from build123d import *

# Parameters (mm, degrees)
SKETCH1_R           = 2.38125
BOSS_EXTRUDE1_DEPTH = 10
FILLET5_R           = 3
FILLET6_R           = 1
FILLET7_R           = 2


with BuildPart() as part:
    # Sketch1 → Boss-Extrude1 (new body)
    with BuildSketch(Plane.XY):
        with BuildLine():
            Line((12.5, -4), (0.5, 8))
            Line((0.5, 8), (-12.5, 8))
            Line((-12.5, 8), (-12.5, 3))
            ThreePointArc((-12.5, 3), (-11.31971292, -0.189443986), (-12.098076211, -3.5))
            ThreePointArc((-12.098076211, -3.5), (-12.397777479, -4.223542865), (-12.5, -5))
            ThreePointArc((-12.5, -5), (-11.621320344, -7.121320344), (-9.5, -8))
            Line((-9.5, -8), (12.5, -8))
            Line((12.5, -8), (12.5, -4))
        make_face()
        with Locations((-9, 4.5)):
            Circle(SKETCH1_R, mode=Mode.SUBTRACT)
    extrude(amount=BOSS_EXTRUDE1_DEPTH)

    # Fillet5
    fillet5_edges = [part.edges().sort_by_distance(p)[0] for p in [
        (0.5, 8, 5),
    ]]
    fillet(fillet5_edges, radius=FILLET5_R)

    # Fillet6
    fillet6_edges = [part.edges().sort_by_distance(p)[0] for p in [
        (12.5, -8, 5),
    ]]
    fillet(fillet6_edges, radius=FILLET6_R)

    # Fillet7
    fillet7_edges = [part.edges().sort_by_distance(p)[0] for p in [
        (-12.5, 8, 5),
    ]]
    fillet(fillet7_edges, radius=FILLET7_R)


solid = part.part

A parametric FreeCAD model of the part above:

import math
import FreeCAD as App
import Part
import Sketcher

V = App.Vector
Q = App.Units.Quantity


def edges_at(feature, points):
    """Names of the edges that pass closest to the given points."""
    edges = feature.Shape.Edges
    near = lambda p: min(range(len(edges)), key=lambda i: edges[i].distToShape(Part.Vertex(*p))[0])
    return sorted({f"Edge{near(p) + 1}" for p in points})

doc = App.newDocument("Part")
body = doc.addObject("PartDesign::Body", "Body")

sketch1 = body.newObject("Sketcher::SketchObject", "Sketch")
sketch1.AttachmentSupport = (doc.getObject("XY_Plane"), [""])
sketch1.MapMode = "FlatFace"
sketch1.addGeometry([
    Part.LineSegment(V(12.5, -4, 0), V(0.5, 8, 0)),
    Part.LineSegment(V(0.5, 8, 0), V(-12.5, 8, 0)),
    Part.LineSegment(V(-12.5, 8, 0), V(-12.5, 3, 0)),
    Part.ArcOfCircle(Part.Circle(V(-17.202119, -0.553179, 0), V(0, 0, 1), 5.893642), math.radians(-30), math.radians(37.076694)),
    Part.ArcOfCircle(Part.Circle(V(-9.5, -5, 0), V(0, 0, 1), 3), math.radians(150), math.radians(180)),
    Part.ArcOfCircle(Part.Circle(V(-9.5, -5, 0), V(0, 0, 1), 3), math.radians(180), math.radians(270)),
    Part.LineSegment(V(-9.5, -8, 0), V(12.5, -8, 0)),
    Part.LineSegment(V(12.5, -8, 0), V(12.5, -4, 0)),
    Part.Circle(V(-9, 4.5, 0), V(0, 0, 1), 2.38125),
], False)
sketch1.addConstraint([
    Sketcher.Constraint("Coincident", 0, 2, 1, 1),
    Sketcher.Constraint("Coincident", 1, 2, 2, 1),
    Sketcher.Constraint("Coincident", 2, 2, 3, 2),
    Sketcher.Constraint("Tangent", 3, 1, 4, 1),
    Sketcher.Constraint("Tangent", 4, 2, 5, 1),
    Sketcher.Constraint("Tangent", 5, 2, 6, 1),
    Sketcher.Constraint("Coincident", 6, 2, 7, 1),
    Sketcher.Constraint("Coincident", 7, 2, 0, 1),
    Sketcher.Constraint("Horizontal", 1),
    Sketcher.Constraint("Vertical", 2),
    Sketcher.Constraint("Horizontal", 6),
    Sketcher.Constraint("Vertical", 7),
    Sketcher.Constraint("Equal", 4, 5),
    Sketcher.Constraint("Symmetric", 1, 2, 6, 2, -1, 1),
    Sketcher.Constraint("Horizontal", 5, 3, 4, 2),
    Sketcher.Constraint("Vertical", 2, 2, 4, 2),
    Sketcher.Constraint("Radius", 4, Q("3 mm")),
    Sketcher.Constraint("DistanceX", 1, 2, 1, 1, Q("13 mm")),
    Sketcher.Constraint("DistanceX", 6, 1, 6, 2, Q("22 mm")),
    Sketcher.Constraint("DistanceY", 2, 2, 2, 1, Q("5 mm")),
    Sketcher.Constraint("DistanceY", 7, 1, 7, 2, Q("4 mm")),
    Sketcher.Constraint("Angle", 0, Q("135 deg")),
    Sketcher.Constraint("DistanceX", 8, 3, -1, 1, Q("9 mm")),
    Sketcher.Constraint("DistanceY", 3, 1, 8, 3, Q("8 mm")),
    Sketcher.Constraint("Diameter", 8, Q("4.7625 mm")),
    Sketcher.Constraint("DistanceY", -1, 1, 8, 3, Q("4.5 mm")),
])
pad1 = body.newObject("PartDesign::Pad", "Pad")
pad1.Profile = sketch1
pad1.Length = 10
doc.recompute()

fillet = body.newObject("PartDesign::Fillet", "Fillet")
fillet.Base = (pad1, edges_at(pad1, [(0.5, 8, 5)]))
fillet.Radius = 3
doc.recompute()

fillet2 = body.newObject("PartDesign::Fillet", "Fillet001")
fillet2.Base = (fillet, edges_at(fillet, [(12.5, -8, 5)]))
fillet2.Radius = 1
doc.recompute()

fillet3 = body.newObject("PartDesign::Fillet", "Fillet002")
fillet3.Base = (fillet2, edges_at(fillet2, [(-12.5, 8, 5)]))
fillet3.Radius = 2

doc.recompute()
